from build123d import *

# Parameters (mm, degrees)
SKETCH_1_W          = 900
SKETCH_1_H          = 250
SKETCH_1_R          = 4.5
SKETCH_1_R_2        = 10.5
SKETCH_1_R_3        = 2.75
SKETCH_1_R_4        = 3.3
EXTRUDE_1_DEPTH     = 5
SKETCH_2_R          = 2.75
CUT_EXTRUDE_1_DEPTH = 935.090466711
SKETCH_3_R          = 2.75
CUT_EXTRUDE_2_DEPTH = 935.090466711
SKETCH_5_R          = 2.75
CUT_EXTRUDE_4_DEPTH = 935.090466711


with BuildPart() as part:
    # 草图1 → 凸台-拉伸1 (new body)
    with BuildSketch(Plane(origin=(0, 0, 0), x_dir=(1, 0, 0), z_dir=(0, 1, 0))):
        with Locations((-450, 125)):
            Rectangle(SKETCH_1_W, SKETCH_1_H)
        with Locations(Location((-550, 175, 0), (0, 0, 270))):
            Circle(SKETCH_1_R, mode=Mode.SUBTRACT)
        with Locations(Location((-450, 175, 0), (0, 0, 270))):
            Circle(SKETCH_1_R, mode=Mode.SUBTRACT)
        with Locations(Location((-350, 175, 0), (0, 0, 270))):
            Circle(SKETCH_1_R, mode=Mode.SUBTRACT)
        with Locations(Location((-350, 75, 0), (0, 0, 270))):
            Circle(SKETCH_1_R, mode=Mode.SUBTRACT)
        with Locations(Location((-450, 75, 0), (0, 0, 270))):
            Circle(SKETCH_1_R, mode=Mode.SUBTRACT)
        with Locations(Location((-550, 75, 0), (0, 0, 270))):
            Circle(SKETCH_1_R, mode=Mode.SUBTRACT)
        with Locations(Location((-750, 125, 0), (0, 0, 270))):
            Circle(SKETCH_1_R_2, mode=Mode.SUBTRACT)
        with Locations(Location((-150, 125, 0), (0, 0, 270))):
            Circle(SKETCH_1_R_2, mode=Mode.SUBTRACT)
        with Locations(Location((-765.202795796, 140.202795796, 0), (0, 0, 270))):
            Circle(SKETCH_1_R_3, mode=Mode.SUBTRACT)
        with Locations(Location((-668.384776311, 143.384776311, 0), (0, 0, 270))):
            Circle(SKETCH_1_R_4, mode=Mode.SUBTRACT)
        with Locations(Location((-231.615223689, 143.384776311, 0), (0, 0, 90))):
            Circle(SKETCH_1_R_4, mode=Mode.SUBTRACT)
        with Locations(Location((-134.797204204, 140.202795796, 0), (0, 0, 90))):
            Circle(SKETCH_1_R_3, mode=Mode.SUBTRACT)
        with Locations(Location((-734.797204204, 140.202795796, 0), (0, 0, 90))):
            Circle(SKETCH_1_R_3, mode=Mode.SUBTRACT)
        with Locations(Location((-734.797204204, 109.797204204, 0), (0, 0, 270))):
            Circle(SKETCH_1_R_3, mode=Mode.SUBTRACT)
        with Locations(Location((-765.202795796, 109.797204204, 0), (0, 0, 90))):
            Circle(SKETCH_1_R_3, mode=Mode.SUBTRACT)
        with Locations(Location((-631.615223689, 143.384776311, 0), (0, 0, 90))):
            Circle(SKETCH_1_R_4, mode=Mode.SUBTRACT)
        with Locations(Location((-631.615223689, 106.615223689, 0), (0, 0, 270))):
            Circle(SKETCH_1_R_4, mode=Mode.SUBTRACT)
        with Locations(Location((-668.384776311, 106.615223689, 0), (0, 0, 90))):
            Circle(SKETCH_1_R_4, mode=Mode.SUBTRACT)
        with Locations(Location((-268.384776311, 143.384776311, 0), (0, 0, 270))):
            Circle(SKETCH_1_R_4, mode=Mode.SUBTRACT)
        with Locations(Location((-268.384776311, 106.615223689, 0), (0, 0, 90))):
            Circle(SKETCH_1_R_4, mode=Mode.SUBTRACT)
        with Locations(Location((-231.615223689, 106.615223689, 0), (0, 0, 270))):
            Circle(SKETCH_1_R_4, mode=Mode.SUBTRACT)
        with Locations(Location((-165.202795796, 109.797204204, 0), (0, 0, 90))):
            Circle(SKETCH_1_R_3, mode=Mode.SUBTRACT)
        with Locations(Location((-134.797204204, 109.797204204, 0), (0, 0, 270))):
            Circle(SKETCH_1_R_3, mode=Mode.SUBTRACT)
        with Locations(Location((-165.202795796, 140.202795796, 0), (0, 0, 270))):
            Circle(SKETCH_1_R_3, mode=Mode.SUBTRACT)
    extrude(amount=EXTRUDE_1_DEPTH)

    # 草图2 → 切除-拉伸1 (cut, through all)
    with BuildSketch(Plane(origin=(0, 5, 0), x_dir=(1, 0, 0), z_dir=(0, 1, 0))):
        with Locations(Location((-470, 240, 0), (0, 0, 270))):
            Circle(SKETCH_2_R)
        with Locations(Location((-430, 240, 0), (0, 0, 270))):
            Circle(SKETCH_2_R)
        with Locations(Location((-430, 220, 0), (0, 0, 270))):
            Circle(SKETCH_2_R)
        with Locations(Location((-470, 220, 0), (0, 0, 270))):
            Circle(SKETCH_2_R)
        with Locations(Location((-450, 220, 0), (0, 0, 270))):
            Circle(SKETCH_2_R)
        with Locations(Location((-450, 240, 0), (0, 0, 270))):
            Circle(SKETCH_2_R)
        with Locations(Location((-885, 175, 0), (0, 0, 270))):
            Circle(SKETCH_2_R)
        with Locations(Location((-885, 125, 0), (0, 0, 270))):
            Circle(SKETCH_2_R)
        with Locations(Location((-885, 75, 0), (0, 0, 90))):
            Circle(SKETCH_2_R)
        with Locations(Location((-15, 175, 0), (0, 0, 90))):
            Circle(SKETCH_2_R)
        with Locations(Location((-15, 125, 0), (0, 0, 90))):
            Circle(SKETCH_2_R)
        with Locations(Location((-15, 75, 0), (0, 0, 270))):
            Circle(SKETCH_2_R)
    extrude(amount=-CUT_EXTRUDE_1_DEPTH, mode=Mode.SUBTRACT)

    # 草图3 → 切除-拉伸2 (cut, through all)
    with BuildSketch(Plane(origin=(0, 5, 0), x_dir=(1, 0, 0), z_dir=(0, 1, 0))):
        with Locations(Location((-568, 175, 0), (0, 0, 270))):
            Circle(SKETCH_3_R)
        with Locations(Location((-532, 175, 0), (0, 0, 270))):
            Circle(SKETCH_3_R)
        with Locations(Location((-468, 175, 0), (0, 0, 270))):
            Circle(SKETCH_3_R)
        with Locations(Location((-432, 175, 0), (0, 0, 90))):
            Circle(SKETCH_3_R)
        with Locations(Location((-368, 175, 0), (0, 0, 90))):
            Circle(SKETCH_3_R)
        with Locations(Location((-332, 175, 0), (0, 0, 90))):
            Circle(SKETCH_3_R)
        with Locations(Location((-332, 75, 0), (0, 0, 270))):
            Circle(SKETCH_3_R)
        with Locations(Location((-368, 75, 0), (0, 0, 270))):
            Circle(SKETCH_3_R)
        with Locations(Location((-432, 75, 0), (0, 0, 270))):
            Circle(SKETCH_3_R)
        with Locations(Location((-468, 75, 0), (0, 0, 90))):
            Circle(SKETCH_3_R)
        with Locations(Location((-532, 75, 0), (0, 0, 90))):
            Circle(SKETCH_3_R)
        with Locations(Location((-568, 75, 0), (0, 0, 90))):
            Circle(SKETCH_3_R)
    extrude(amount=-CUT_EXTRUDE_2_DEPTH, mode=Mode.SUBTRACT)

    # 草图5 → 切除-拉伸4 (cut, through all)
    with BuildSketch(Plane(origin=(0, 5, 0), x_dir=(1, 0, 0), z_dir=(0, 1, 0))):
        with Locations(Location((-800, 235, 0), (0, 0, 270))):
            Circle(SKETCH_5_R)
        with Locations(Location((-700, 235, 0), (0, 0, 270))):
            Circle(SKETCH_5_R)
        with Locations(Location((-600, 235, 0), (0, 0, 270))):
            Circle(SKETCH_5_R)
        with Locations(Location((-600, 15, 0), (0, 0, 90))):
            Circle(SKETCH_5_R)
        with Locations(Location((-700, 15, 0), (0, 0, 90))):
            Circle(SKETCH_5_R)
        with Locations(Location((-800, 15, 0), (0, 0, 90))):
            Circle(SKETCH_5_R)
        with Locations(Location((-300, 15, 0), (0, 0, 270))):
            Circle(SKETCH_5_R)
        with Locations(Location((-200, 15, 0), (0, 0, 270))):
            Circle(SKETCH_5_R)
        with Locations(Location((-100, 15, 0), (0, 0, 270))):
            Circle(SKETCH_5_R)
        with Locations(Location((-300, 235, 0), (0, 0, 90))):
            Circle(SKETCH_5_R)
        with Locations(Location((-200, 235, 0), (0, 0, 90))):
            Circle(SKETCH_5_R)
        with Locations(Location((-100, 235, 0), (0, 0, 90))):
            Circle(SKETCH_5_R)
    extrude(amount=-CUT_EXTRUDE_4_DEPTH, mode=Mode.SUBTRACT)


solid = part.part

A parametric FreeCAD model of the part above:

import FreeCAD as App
import Part
import Sketcher


def add_polygon(sketch, points):
    """Adds a closed chain of lines whose ends are joined by coincident constraints."""
    first, n = sketch.GeometryCount, len(points)
    for a, b in zip(points, points[1:] + points[:1]):
        sketch.addGeometry(Part.LineSegment(App.Vector(*a, 0), App.Vector(*b, 0)), False)
    for i in range(n):
        sketch.addConstraint(Sketcher.Constraint("Coincident", first + i, 2, first + (i + 1) % n, 1))

doc = App.newDocument("Part")
body = doc.addObject("PartDesign::Body", "Body")

# Sketch on XZ plane
sketch1 = doc.addObject("Sketcher::SketchObject", "Sketch")
body.addObject(sketch1)
sketch1.AttachmentSupport = (doc.XZ_Plane, [""])
sketch1.MapMode = "FlatFace"
add_polygon(sketch1, [(-900, -250), (-900, 0), (0, 0), (0, -250)])  # lines 0-3
sketch1.addGeometry(Part.Circle(App.Vector(-550, -75, 0), App.Vector(0, 0, 1), 4.5), False)  # 4
sketch1.addGeometry(Part.Circle(App.Vector(-765.2, -109.8, 0), App.Vector(0, 0, 1), 2.8), False)  # 5
sketch1.addGeometry(Part.Circle(App.Vector(-734.8, -109.8, 0), App.Vector(0, 0, 1), 2.8), False)  # 6
sketch1.addGeometry(Part.Circle(App.Vector(-668.4, -106.6, 0), App.Vector(0, 0, 1), 3.3), False)  # 7
sketch1.addGeometry(Part.Circle(App.Vector(-631.6, -106.6, 0), App.Vector(0, 0, 1), 3.3), False)  # 8
sketch1.addGeometry(Part.Circle(App.Vector(-450, -75, 0), App.Vector(0, 0, 1), 4.5), False)  # 9
sketch1.addGeometry(Part.Circle(App.Vector(-350, -75, 0), App.Vector(0, 0, 1), 4.5), False)  # 10
sketch1.addGeometry(Part.Circle(App.Vector(-268.4, -106.6, 0), App.Vector(0, 0, 1), 3.3), False)  # 11
sketch1.addGeometry(Part.Circle(App.Vector(-231.6, -106.6, 0), App.Vector(0, 0, 1), 3.3), False)  # 12
sketch1.addGeometry(Part.Circle(App.Vector(-165.2, -109.8, 0), App.Vector(0, 0, 1), 2.8), False)  # 13
sketch1.addGeometry(Part.Circle(App.Vector(-134.8, -109.8, 0), App.Vector(0, 0, 1), 2.8), False)  # 14
sketch1.addGeometry(Part.Circle(App.Vector(-750, -125, 0), App.Vector(0, 0, 1), 10.5), False)  # 15
sketch1.addGeometry(Part.Circle(App.Vector(-765.2, -140.2, 0), App.Vector(0, 0, 1), 2.8), False)  # 16
sketch1.addGeometry(Part.Circle(App.Vector(-734.8, -140.2, 0), App.Vector(0, 0, 1), 2.8), False)  # 17
sketch1.addGeometry(Part.Circle(App.Vector(-668.4, -143.4, 0), App.Vector(0, 0, 1), 3.3), False)  # 18
sketch1.addGeometry(Part.Circle(App.Vector(-631.6, -143.4, 0), App.Vector(0, 0, 1), 3.3), False)  # 19
sketch1.addGeometry(Part.Circle(App.Vector(-550, -175, 0), App.Vector(0, 0, 1), 4.5), False)  # 20
sketch1.addGeometry(Part.Circle(App.Vector(-150, -125, 0), App.Vector(0, 0, 1), 10.5), False)  # 21
sketch1.addGeometry(Part.Circle(App.Vector(-268.4, -143.4, 0), App.Vector(0, 0, 1), 3.3), False)  # 22
sketch1.addGeometry(Part.Circle(App.Vector(-231.6, -143.4, 0), App.Vector(0, 0, 1), 3.3), False)  # 23
sketch1.addGeometry(Part.Circle(App.Vector(-165.2, -140.2, 0), App.Vector(0, 0, 1), 2.8), False)  # 24
sketch1.addGeometry(Part.Circle(App.Vector(-134.8, -140.2, 0), App.Vector(0, 0, 1), 2.8), False)  # 25
sketch1.addGeometry(Part.Circle(App.Vector(-450, -175, 0), App.Vector(0, 0, 1), 4.5), False)  # 26
sketch1.addGeometry(Part.Circle(App.Vector(-350, -175, 0), App.Vector(0, 0, 1), 4.5), False)  # 27
sketch1.addConstraint(Sketcher.Constraint("Vertical", 0))
sketch1.addConstraint(Sketcher.Constraint("Horizontal", 1))
sketch1.addConstraint(Sketcher.Constraint("Vertical", 2))
sketch1.addConstraint(Sketcher.Constraint("Horizontal", 3))
sketch1.addConstraint(Sketcher.Constraint("Coincident", 1, 2, -1, 1))
sketch1.addConstraint(Sketcher.Constraint("Equal", 5, 6))
sketch1.addConstraint(Sketcher.Constraint("Equal", 7, 8))
sketch1.addConstraint(Sketcher.Constraint("Equal", 4, 9))
sketch1.addConstraint(Sketcher.Constraint("Equal", 9, 10))
sketch1.addConstraint(Sketcher.Constraint("Equal", 8, 11))
sketch1.addConstraint(Sketcher.Constraint("Equal", 11, 12))
sketch1.addConstraint(Sketcher.Constraint("Equal", 6, 13))
sketch1.addConstraint(Sketcher.Constraint("Equal", 13, 14))
sketch1.addConstraint(Sketcher.Constraint("Equal", 14, 16))
sketch1.addConstraint(Sketcher.Constraint("Equal", 16, 17))
sketch1.addConstraint(Sketcher.Constraint("Equal", 12, 18))
sketch1.addConstraint(Sketcher.Constraint("Equal", 18, 19))
sketch1.addConstraint(Sketcher.Constraint("Equal", 10, 20))
sketch1.addConstraint(Sketcher.Constraint("Equal", 15, 21))
sketch1.addConstraint(Sketcher.Constraint("Equal", 19, 22))
sketch1.addConstraint(Sketcher.Constraint("Equal", 22, 23))
sketch1.addConstraint(Sketcher.Constraint("Equal", 17, 24))
sketch1.addConstraint(Sketcher.Constraint("Equal", 24, 25))
sketch1.addConstraint(Sketcher.Constraint("Equal", 20, 26))
sketch1.addConstraint(Sketcher.Constraint("Equal", 26, 27))
sketch1.addConstraint(Sketcher.Constraint("Horizontal", 5, 3, 6, 3))
sketch1.addConstraint(Sketcher.Constraint("Horizontal", 7, 3, 8, 3))
sketch1.addConstraint(Sketcher.Constraint("Horizontal", 4, 3, 9, 3))
sketch1.addConstraint(Sketcher.Constraint("Horizontal", 9, 3, 10, 3))
sketch1.addConstraint(Sketcher.Constraint("Horizontal", 8, 3, 11, 3))
sketch1.addConstraint(Sketcher.Constraint("Horizontal", 11, 3, 12, 3))
sketch1.addConstraint(Sketcher.Constraint("Horizontal", 6, 3, 13, 3))
sketch1.addConstraint(Sketcher.Constraint("Horizontal", 13, 3, 14, 3))
sketch1.addConstraint(Sketcher.Constraint("Horizontal", 16, 3, 17, 3))
sketch1.addConstraint(Sketcher.Constraint("Horizontal", 18, 3, 19, 3))
sketch1.addConstraint(Sketcher.Constraint("Horizontal", 15, 3, 21, 3))
sketch1.addConstraint(Sketcher.Constraint("Horizontal", 19, 3, 22, 3))
sketch1.addConstraint(Sketcher.Constraint("Horizontal", 22, 3, 23, 3))
sketch1.addConstraint(Sketcher.Constraint("Horizontal", 17, 3, 24, 3))
sketch1.addConstraint(Sketcher.Constraint("Horizontal", 24, 3, 25, 3))
sketch1.addConstraint(Sketcher.Constraint("Horizontal", 20, 3, 26, 3))
sketch1.addConstraint(Sketcher.Constraint("Horizontal", 26, 3, 27, 3))
sketch1.addConstraint(Sketcher.Constraint("Vertical", 5, 3, 16, 3))
sketch1.addConstraint(Sketcher.Constraint("Vertical", 6, 3, 17, 3))
sketch1.addConstraint(Sketcher.Constraint("Vertical", 7, 3, 18, 3))
sketch1.addConstraint(Sketcher.Constraint("Vertical", 8, 3, 19, 3))
sketch1.addConstraint(Sketcher.Constraint("Vertical", 4, 3, 20, 3))
sketch1.addConstraint(Sketcher.Constraint("Vertical", 11, 3, 22, 3))
sketch1.addConstraint(Sketcher.Constraint("Vertical", 12, 3, 23, 3))
sketch1.addConstraint(Sketcher.Constraint("Vertical", 13, 3, 24, 3))
sketch1.addConstraint(Sketcher.Constraint("Vertical", 14, 3, 25, 3))
sketch1.addConstraint(Sketcher.Constraint("Vertical", 9, 3, 26, 3))
sketch1.addConstraint(Sketcher.Constraint("Vertical", 10, 3, 27, 3))
sketch1.addConstraint(Sketcher.Constraint("Diameter", 4, 9.0))
sketch1.addConstraint(Sketcher.Constraint("Diameter", 15, 21.0))
sketch1.addConstraint(Sketcher.Constraint("Diameter", 5, 5.5))
sketch1.addConstraint(Sketcher.Constraint("Diameter", 7, 6.6))
sketch1.addConstraint(Sketcher.Constraint("DistanceX", 1, 1, 1, 2, 900.0))
sketch1.addConstraint(Sketcher.Constraint("DistanceY", 0, 1, 0, 2, 250.0))
sketch1.addConstraint(Sketcher.Constraint("DistanceX", 4, 3, -1, 1, 550.0))
sketch1.addConstraint(Sketcher.Constraint("DistanceY", 4, 3, -1, 1, 75.0))
sketch1.addConstraint(Sketcher.Constraint("DistanceX", 9, 3, -1, 1, 450.0))
sketch1.addConstraint(Sketcher.Constraint("DistanceX", 10, 3, -1, 1, 350.0))
sketch1.addConstraint(Sketcher.Constraint("DistanceX", 15, 3, -1, 1, 750.0))
sketch1.addConstraint(Sketcher.Constraint("DistanceY", 15, 3, -1, 1, 125.0))
sketch1.addConstraint(Sketcher.Constraint("DistanceY", 20, 3, -1, 1, 175.0))
sketch1.addConstraint(Sketcher.Constraint("DistanceX", 21, 3, -1, 1, 150.0))
sketch1.addConstraint(Sketcher.Constraint("DistanceX", 7, 3, 11, 3, 400.0))
sketch1.addConstraint(Sketcher.Constraint("DistanceX", 8, 3, 12, 3, 400.0))
sketch1.addConstraint(Sketcher.Constraint("DistanceX", 5, 3, 6, 3, 30.405592))
sketch1.addConstraint(Sketcher.Constraint("DistanceY", 6, 3, 7, 3, 3.181981))
sketch1.addConstraint(Sketcher.Constraint("DistanceX", 5, 3, 7, 3, 96.818019))
sketch1.addConstraint(Sketcher.Constraint("DistanceX", 6, 3, 8, 3, 103.181981))
sketch1.addConstraint(Sketcher.Constraint("DistanceX", 11, 3, 13, 3, 103.181981))
sketch1.addConstraint(Sketcher.Constraint("DistanceX", 13, 3, 14, 3, 30.405592))
sketch1.addConstraint(Sketcher.Constraint("DistanceY", 16, 3, 5, 3, 30.405592))
sketch1.addConstraint(Sketcher.Constraint("DistanceY", 18, 3, 17, 3, 3.181981))
sketch1.addConstraint(Sketcher.Constraint("DistanceX", 5, 3, -1, 1, 765.202796))
sketch1.addConstraint(Sketcher.Constraint("DistanceY", 5, 3, -1, 1, 109.797204))
pad1 = doc.addObject("PartDesign::Pad", "Pad")
body.addObject(pad1)
pad1.Profile = sketch1
pad1.Length = 5
pad1.Reversed = True

# Sketch on XZ plane
sketch2 = doc.addObject("Sketcher::SketchObject", "Sketch001")
body.addObject(sketch2)
sketch2.AttachmentSupport = (doc.XZ_Plane, [""])
sketch2.MapMode = "FlatFace"
sketch2.AttachmentOffset = App.Placement(App.Vector(0, 0, -5), App.Rotation())
sketch2.addGeometry(Part.Circle(App.Vector(-470, -240, 0), App.Vector(0, 0, 1), 2.8), False)
sketch2.addGeometry(Part.Circle(App.Vector(-430, -240, 0), App.Vector(0, 0, 1), 2.8), False)
sketch2.addGeometry(Part.Circle(App.Vector(-430, -220, 0), App.Vector(0, 0, 1), 2.8), False)
sketch2.addGeometry(Part.Circle(App.Vector(-470, -220, 0), App.Vector(0, 0, 1), 2.8), False)
sketch2.addGeometry(Part.Circle(App.Vector(-450, -220, 0), App.Vector(0, 0, 1), 2.8), False)
sketch2.addGeometry(Part.Circle(App.Vector(-450, -240, 0), App.Vector(0, 0, 1), 2.8), False)
sketch2.addGeometry(Part.Circle(App.Vector(-885, -175, 0), App.Vector(0, 0, 1), 2.8), False)
sketch2.addGeometry(Part.Circle(App.Vector(-885, -125, 0), App.Vector(0, 0, 1), 2.8), False)
sketch2.addGeometry(Part.Circle(App.Vector(-885, -75, 0), App.Vector(0, 0, 1), 2.8), False)
sketch2.addGeometry(Part.Circle(App.Vector(-15, -175, 0), App.Vector(0, 0, 1), 2.8), False)
sketch2.addGeometry(Part.Circle(App.Vector(-15, -125, 0), App.Vector(0, 0, 1), 2.8), False)
sketch2.addGeometry(Part.Circle(App.Vector(-15, -75, 0), App.Vector(0, 0, 1), 2.8), False)
sketch2.addConstraint(Sketcher.Constraint("Equal", 0, 1))
sketch2.addConstraint(Sketcher.Constraint("Equal", 1, 2))
sketch2.addConstraint(Sketcher.Constraint("Equal", 2, 3))
sketch2.addConstraint(Sketcher.Constraint("Equal", 3, 4))
sketch2.addConstraint(Sketcher.Constraint("Equal", 4, 5))
sketch2.addConstraint(Sketcher.Constraint("Equal", 5, 6))
sketch2.addConstraint(Sketcher.Constraint("Equal", 6, 7))
sketch2.addConstraint(Sketcher.Constraint("Equal", 7, 8))
sketch2.addConstraint(Sketcher.Constraint("Equal", 8, 9))
sketch2.addConstraint(Sketcher.Constraint("Equal", 9, 10))
sketch2.addConstraint(Sketcher.Constraint("Equal", 10, 11))
sketch2.addConstraint(Sketcher.Constraint("Horizontal", 0, 3, 1, 3))
sketch2.addConstraint(Sketcher.Constraint("Horizontal", 2, 3, 3, 3))
sketch2.addConstraint(Sketcher.Constraint("Horizontal", 3, 3, 4, 3))
sketch2.addConstraint(Sketcher.Constraint("Horizontal", 1, 3, 5, 3))
sketch2.addConstraint(Sketcher.Constraint("Horizontal", 6, 3, 9, 3))
sketch2.addConstraint(Sketcher.Constraint("Horizontal", 7, 3, 10, 3))
sketch2.addConstraint(Sketcher.Constraint("Horizontal", 8, 3, 11, 3))
sketch2.addConstraint(Sketcher.Constraint("Vertical", 1, 3, 2, 3))
sketch2.addConstraint(Sketcher.Constraint("Vertical", 0, 3, 3, 3))
sketch2.addConstraint(Sketcher.Constraint("Vertical", 4, 3, 5, 3))
sketch2.addConstraint(Sketcher.Constraint("Vertical", 6, 3, 7, 3))
sketch2.addConstraint(Sketcher.Constraint("Vertical", 7, 3, 8, 3))
sketch2.addConstraint(Sketcher.Constraint("Vertical", 9, 3, 10, 3))
sketch2.addConstraint(Sketcher.Constraint("Vertical", 10, 3, 11, 3))
sketch2.addConstraint(Sketcher.Constraint("Diameter", 0, 5.5))
sketch2.addConstraint(Sketcher.Constraint("DistanceX", 0, 3, -1, 1, 470.0))
sketch2.addConstraint(Sketcher.Constraint("DistanceY", 0, 3, -1, 1, 240.0))
sketch2.addConstraint(Sketcher.Constraint("DistanceX", 1, 3, -1, 1, 430.0))
sketch2.addConstraint(Sketcher.Constraint("DistanceY", 2, 3, -1, 1, 220.0))
sketch2.addConstraint(Sketcher.Constraint("DistanceX", 4, 3, -1, 1, 450.0))
sketch2.addConstraint(Sketcher.Constraint("DistanceX", 6, 3, -1, 1, 885.0))
sketch2.addConstraint(Sketcher.Constraint("DistanceY", 6, 3, -1, 1, 175.0))
sketch2.addConstraint(Sketcher.Constraint("DistanceY", 7, 3, -1, 1, 125.0))
sketch2.addConstraint(Sketcher.Constraint("DistanceY", 8, 3, -1, 1, 75.0))
sketch2.addConstraint(Sketcher.Constraint("DistanceX", 9, 3, -1, 1, 15.0))
pocket1 = doc.addObject("PartDesign::Pocket", "Pocket")
body.addObject(pocket1)
pocket1.Profile = sketch2
pocket1.Type = "ThroughAll"
pocket1.Reversed = True

# Sketch on XZ plane
sketch3 = doc.addObject("Sketcher::SketchObject", "Sketch002")
body.addObject(sketch3)
sketch3.AttachmentSupport = (doc.XZ_Plane, [""])
sketch3.MapMode = "FlatFace"
sketch3.AttachmentOffset = App.Placement(App.Vector(0, 0, -5), App.Rotation())
sketch3.addGeometry(Part.Circle(App.Vector(-568, -175, 0), App.Vector(0, 0, 1), 2.8), False)
sketch3.addGeometry(Part.Circle(App.Vector(-532, -175, 0), App.Vector(0, 0, 1), 2.8), False)
sketch3.addGeometry(Part.Circle(App.Vector(-468, -175, 0), App.Vector(0, 0, 1), 2.8), False)
sketch3.addGeometry(Part.Circle(App.Vector(-432, -175, 0), App.Vector(0, 0, 1), 2.8), False)
sketch3.addGeometry(Part.Circle(App.Vector(-368, -175, 0), App.Vector(0, 0, 1), 2.8), False)
sketch3.addGeometry(Part.Circle(App.Vector(-332, -175, 0), App.Vector(0, 0, 1), 2.8), False)
sketch3.addGeometry(Part.Circle(App.Vector(-332, -75, 0), App.Vector(0, 0, 1), 2.8), False)
sketch3.addGeometry(Part.Circle(App.Vector(-368, -75, 0), App.Vector(0, 0, 1), 2.8), False)
sketch3.addGeometry(Part.Circle(App.Vector(-432, -75, 0), App.Vector(0, 0, 1), 2.8), False)
sketch3.addGeometry(Part.Circle(App.Vector(-468, -75, 0), App.Vector(0, 0, 1), 2.8), False)
sketch3.addGeometry(Part.Circle(App.Vector(-532, -75, 0), App.Vector(0, 0, 1), 2.8), False)
sketch3.addGeometry(Part.Circle(App.Vector(-568, -75, 0), App.Vector(0, 0, 1), 2.8), False)
sketch3.addConstraint(Sketcher.Constraint("Equal", 0, 1))
sketch3.addConstraint(Sketcher.Constraint("Equal", 1, 2))
sketch3.addConstraint(Sketcher.Constraint("Equal", 2, 3))
sketch3.addConstraint(Sketcher.Constraint("Equal", 3, 4))
sketch3.addConstraint(Sketcher.Constraint("Equal", 4, 5))
sketch3.addConstraint(Sketcher.Constraint("Equal", 5, 6))
sketch3.addConstraint(Sketcher.Constraint("Equal", 6, 7))
sketch3.addConstraint(Sketcher.Constraint("Equal", 7, 8))
sketch3.addConstraint(Sketcher.Constraint("Equal", 8, 9))
sketch3.addConstraint(Sketcher.Constraint("Equal", 9, 10))
sketch3.addConstraint(Sketcher.Constraint("Equal", 10, 11))
sketch3.addConstraint(Sketcher.Constraint("Horizontal", 0, 3, 1, 3))
sketch3.addConstraint(Sketcher.Constraint("Horizontal", 1, 3, 2, 3))
sketch3.addConstraint(Sketcher.Constraint("Horizontal", 2, 3, 3, 3))
sketch3.addConstraint(Sketcher.Constraint("Horizontal", 3, 3, 4, 3))
sketch3.addConstraint(Sketcher.Constraint("Horizontal", 4, 3, 5, 3))
sketch3.addConstraint(Sketcher.Constraint("Horizontal", 6, 3, 7, 3))
sketch3.addConstraint(Sketcher.Constraint("Horizontal", 7, 3, 8, 3))
sketch3.addConstraint(Sketcher.Constraint("Horizontal", 8, 3, 9, 3))
sketch3.addConstraint(Sketcher.Constraint("Horizontal", 9, 3, 10, 3))
sketch3.addConstraint(Sketcher.Constraint("Horizontal", 10, 3, 11, 3))
sketch3.addConstraint(Sketcher.Constraint("Vertical", 5, 3, 6, 3))
sketch3.addConstraint(Sketcher.Constraint("Vertical", 4, 3, 7, 3))
sketch3.addConstraint(Sketcher.Constraint("Vertical", 3, 3, 8, 3))
sketch3.addConstraint(Sketcher.Constraint("Vertical", 2, 3, 9, 3))
sketch3.addConstraint(Sketcher.Constraint("Vertical", 1, 3, 10, 3))
sketch3.addConstraint(Sketcher.Constraint("Vertical", 0, 3, 11, 3))
sketch3.addConstraint(Sketcher.Constraint("Diameter", 0, 5.5))
sketch3.addConstraint(Sketcher.Constraint("DistanceX", 0, 3, -1, 1, 568.0))
sketch3.addConstraint(Sketcher.Constraint("DistanceY", 0, 3, -1, 1, 175.0))
sketch3.addConstraint(Sketcher.Constraint("DistanceX", 1, 3, -1, 1, 532.0))
sketch3.addConstraint(Sketcher.Constraint("DistanceX", 2, 3, -1, 1, 468.0))
sketch3.addConstraint(Sketcher.Constraint("DistanceX", 3, 3, -1, 1, 432.0))
sketch3.addConstraint(Sketcher.Constraint("DistanceX", 4, 3, -1, 1, 368.0))
sketch3.addConstraint(Sketcher.Constraint("DistanceX", 5, 3, -1, 1, 332.0))
sketch3.addConstraint(Sketcher.Constraint("DistanceY", 6, 3, -1, 1, 75.0))
pocket2 = doc.addObject("PartDesign::Pocket", "Pocket001")
body.addObject(pocket2)
pocket2.Profile = sketch3
pocket2.Type = "ThroughAll"
pocket2.Reversed = True

# Sketch on XZ plane
sketch4 = doc.addObject("Sketcher::SketchObject", "Sketch003")
body.addObject(sketch4)
sketch4.AttachmentSupport = (doc.XZ_Plane, [""])
sketch4.MapMode = "FlatFace"
sketch4.AttachmentOffset = App.Placement(App.Vector(0, 0, -5), App.Rotation())
sketch4.addGeometry(Part.Circle(App.Vector(-800, -235, 0), App.Vector(0, 0, 1), 2.8), False)
sketch4.addGeometry(Part.Circle(App.Vector(-700, -235, 0), App.Vector(0, 0, 1), 2.8), False)
sketch4.addGeometry(Part.Circle(App.Vector(-600, -235, 0), App.Vector(0, 0, 1), 2.8), False)
sketch4.addGeometry(Part.Circle(App.Vector(-600, -15, 0), App.Vector(0, 0, 1), 2.8), False)
sketch4.addGeometry(Part.Circle(App.Vector(-700, -15, 0), App.Vector(0, 0, 1), 2.8), False)
sketch4.addGeometry(Part.Circle(App.Vector(-800, -15, 0), App.Vector(0, 0, 1), 2.8), False)
sketch4.addGeometry(Part.Circle(App.Vector(-300, -15, 0), App.Vector(0, 0, 1), 2.8), False)
sketch4.addGeometry(Part.Circle(App.Vector(-200, -15, 0), App.Vector(0, 0, 1), 2.8), False)
sketch4.addGeometry(Part.Circle(App.Vector(-100, -15, 0), App.Vector(0, 0, 1), 2.8), False)
sketch4.addGeometry(Part.Circle(App.Vector(-300, -235, 0), App.Vector(0, 0, 1), 2.8), False)
sketch4.addGeometry(Part.Circle(App.Vector(-200, -235, 0), App.Vector(0, 0, 1), 2.8), False)
sketch4.addGeometry(Part.Circle(App.Vector(-100, -235, 0), App.Vector(0, 0, 1), 2.8), False)
sketch4.addConstraint(Sketcher.Constraint("Equal", 0, 1))
sketch4.addConstraint(Sketcher.Constraint("Equal", 1, 2))
sketch4.addConstraint(Sketcher.Constraint("Equal", 2, 3))
sketch4.addConstraint(Sketcher.Constraint("Equal", 3, 4))
sketch4.addConstraint(Sketcher.Constraint("Equal", 4, 5))
sketch4.addConstraint(Sketcher.Constraint("Equal", 5, 6))
sketch4.addConstraint(Sketcher.Constraint("Equal", 6, 7))
sketch4.addConstraint(Sketcher.Constraint("Equal", 7, 8))
sketch4.addConstraint(Sketcher.Constraint("Equal", 8, 9))
sketch4.addConstraint(Sketcher.Constraint("Equal", 9, 10))
sketch4.addConstraint(Sketcher.Constraint("Equal", 10, 11))
sketch4.addConstraint(Sketcher.Constraint("Horizontal", 0, 3, 1, 3))
sketch4.addConstraint(Sketcher.Constraint("Horizontal", 1, 3, 2, 3))
sketch4.addConstraint(Sketcher.Constraint("Horizontal", 3, 3, 4, 3))
sketch4.addConstraint(Sketcher.Constraint("Horizontal", 4, 3, 5, 3))
sketch4.addConstraint(Sketcher.Constraint("Horizontal", 5, 3, 6, 3))
sketch4.addConstraint(Sketcher.Constraint("Horizontal", 6, 3, 7, 3))
sketch4.addConstraint(Sketcher.Constraint("Horizontal", 7, 3, 8, 3))
sketch4.addConstraint(Sketcher.Constraint("Horizontal", 2, 3, 9, 3))
sketch4.addConstraint(Sketcher.Constraint("Horizontal", 9, 3, 10, 3))
sketch4.addConstraint(Sketcher.Constraint("Horizontal", 10, 3, 11, 3))
sketch4.addConstraint(Sketcher.Constraint("Vertical", 2, 3, 3, 3))
sketch4.addConstraint(Sketcher.Constraint("Vertical", 1, 3, 4, 3))
sketch4.addConstraint(Sketcher.Constraint("Vertical", 0, 3, 5, 3))
sketch4.addConstraint(Sketcher.Constraint("Vertical", 6, 3, 9, 3))
sketch4.addConstraint(Sketcher.Constraint("Vertical", 7, 3, 10, 3))
sketch4.addConstraint(Sketcher.Constraint("Vertical", 8, 3, 11, 3))
sketch4.addConstraint(Sketcher.Constraint("Diameter", 0, 5.5))
sketch4.addConstraint(Sketcher.Constraint("DistanceX", 0, 3, -1, 1, 800.0))
sketch4.addConstraint(Sketcher.Constraint("DistanceY", 0, 3, -1, 1, 235.0))
sketch4.addConstraint(Sketcher.Constraint("DistanceX", 1, 3, -1, 1, 700.0))
sketch4.addConstraint(Sketcher.Constraint("DistanceX", 2, 3, -1, 1, 600.0))
sketch4.addConstraint(Sketcher.Constraint("DistanceY", 3, 3, -1, 1, 15.0))
sketch4.addConstraint(Sketcher.Constraint("DistanceX", 6, 3, -1, 1, 300.0))
sketch4.addConstraint(Sketcher.Constraint("DistanceX", 7, 3, -1, 1, 200.0))
sketch4.addConstraint(Sketcher.Constraint("DistanceX", 8, 3, -1, 1, 100.0))
pocket3 = doc.addObject("PartDesign::Pocket", "Pocket002")
body.addObject(pocket3)
pocket3.Profile = sketch4
pocket3.Type = "ThroughAll"
pocket3.Reversed = True

doc.recompute()
